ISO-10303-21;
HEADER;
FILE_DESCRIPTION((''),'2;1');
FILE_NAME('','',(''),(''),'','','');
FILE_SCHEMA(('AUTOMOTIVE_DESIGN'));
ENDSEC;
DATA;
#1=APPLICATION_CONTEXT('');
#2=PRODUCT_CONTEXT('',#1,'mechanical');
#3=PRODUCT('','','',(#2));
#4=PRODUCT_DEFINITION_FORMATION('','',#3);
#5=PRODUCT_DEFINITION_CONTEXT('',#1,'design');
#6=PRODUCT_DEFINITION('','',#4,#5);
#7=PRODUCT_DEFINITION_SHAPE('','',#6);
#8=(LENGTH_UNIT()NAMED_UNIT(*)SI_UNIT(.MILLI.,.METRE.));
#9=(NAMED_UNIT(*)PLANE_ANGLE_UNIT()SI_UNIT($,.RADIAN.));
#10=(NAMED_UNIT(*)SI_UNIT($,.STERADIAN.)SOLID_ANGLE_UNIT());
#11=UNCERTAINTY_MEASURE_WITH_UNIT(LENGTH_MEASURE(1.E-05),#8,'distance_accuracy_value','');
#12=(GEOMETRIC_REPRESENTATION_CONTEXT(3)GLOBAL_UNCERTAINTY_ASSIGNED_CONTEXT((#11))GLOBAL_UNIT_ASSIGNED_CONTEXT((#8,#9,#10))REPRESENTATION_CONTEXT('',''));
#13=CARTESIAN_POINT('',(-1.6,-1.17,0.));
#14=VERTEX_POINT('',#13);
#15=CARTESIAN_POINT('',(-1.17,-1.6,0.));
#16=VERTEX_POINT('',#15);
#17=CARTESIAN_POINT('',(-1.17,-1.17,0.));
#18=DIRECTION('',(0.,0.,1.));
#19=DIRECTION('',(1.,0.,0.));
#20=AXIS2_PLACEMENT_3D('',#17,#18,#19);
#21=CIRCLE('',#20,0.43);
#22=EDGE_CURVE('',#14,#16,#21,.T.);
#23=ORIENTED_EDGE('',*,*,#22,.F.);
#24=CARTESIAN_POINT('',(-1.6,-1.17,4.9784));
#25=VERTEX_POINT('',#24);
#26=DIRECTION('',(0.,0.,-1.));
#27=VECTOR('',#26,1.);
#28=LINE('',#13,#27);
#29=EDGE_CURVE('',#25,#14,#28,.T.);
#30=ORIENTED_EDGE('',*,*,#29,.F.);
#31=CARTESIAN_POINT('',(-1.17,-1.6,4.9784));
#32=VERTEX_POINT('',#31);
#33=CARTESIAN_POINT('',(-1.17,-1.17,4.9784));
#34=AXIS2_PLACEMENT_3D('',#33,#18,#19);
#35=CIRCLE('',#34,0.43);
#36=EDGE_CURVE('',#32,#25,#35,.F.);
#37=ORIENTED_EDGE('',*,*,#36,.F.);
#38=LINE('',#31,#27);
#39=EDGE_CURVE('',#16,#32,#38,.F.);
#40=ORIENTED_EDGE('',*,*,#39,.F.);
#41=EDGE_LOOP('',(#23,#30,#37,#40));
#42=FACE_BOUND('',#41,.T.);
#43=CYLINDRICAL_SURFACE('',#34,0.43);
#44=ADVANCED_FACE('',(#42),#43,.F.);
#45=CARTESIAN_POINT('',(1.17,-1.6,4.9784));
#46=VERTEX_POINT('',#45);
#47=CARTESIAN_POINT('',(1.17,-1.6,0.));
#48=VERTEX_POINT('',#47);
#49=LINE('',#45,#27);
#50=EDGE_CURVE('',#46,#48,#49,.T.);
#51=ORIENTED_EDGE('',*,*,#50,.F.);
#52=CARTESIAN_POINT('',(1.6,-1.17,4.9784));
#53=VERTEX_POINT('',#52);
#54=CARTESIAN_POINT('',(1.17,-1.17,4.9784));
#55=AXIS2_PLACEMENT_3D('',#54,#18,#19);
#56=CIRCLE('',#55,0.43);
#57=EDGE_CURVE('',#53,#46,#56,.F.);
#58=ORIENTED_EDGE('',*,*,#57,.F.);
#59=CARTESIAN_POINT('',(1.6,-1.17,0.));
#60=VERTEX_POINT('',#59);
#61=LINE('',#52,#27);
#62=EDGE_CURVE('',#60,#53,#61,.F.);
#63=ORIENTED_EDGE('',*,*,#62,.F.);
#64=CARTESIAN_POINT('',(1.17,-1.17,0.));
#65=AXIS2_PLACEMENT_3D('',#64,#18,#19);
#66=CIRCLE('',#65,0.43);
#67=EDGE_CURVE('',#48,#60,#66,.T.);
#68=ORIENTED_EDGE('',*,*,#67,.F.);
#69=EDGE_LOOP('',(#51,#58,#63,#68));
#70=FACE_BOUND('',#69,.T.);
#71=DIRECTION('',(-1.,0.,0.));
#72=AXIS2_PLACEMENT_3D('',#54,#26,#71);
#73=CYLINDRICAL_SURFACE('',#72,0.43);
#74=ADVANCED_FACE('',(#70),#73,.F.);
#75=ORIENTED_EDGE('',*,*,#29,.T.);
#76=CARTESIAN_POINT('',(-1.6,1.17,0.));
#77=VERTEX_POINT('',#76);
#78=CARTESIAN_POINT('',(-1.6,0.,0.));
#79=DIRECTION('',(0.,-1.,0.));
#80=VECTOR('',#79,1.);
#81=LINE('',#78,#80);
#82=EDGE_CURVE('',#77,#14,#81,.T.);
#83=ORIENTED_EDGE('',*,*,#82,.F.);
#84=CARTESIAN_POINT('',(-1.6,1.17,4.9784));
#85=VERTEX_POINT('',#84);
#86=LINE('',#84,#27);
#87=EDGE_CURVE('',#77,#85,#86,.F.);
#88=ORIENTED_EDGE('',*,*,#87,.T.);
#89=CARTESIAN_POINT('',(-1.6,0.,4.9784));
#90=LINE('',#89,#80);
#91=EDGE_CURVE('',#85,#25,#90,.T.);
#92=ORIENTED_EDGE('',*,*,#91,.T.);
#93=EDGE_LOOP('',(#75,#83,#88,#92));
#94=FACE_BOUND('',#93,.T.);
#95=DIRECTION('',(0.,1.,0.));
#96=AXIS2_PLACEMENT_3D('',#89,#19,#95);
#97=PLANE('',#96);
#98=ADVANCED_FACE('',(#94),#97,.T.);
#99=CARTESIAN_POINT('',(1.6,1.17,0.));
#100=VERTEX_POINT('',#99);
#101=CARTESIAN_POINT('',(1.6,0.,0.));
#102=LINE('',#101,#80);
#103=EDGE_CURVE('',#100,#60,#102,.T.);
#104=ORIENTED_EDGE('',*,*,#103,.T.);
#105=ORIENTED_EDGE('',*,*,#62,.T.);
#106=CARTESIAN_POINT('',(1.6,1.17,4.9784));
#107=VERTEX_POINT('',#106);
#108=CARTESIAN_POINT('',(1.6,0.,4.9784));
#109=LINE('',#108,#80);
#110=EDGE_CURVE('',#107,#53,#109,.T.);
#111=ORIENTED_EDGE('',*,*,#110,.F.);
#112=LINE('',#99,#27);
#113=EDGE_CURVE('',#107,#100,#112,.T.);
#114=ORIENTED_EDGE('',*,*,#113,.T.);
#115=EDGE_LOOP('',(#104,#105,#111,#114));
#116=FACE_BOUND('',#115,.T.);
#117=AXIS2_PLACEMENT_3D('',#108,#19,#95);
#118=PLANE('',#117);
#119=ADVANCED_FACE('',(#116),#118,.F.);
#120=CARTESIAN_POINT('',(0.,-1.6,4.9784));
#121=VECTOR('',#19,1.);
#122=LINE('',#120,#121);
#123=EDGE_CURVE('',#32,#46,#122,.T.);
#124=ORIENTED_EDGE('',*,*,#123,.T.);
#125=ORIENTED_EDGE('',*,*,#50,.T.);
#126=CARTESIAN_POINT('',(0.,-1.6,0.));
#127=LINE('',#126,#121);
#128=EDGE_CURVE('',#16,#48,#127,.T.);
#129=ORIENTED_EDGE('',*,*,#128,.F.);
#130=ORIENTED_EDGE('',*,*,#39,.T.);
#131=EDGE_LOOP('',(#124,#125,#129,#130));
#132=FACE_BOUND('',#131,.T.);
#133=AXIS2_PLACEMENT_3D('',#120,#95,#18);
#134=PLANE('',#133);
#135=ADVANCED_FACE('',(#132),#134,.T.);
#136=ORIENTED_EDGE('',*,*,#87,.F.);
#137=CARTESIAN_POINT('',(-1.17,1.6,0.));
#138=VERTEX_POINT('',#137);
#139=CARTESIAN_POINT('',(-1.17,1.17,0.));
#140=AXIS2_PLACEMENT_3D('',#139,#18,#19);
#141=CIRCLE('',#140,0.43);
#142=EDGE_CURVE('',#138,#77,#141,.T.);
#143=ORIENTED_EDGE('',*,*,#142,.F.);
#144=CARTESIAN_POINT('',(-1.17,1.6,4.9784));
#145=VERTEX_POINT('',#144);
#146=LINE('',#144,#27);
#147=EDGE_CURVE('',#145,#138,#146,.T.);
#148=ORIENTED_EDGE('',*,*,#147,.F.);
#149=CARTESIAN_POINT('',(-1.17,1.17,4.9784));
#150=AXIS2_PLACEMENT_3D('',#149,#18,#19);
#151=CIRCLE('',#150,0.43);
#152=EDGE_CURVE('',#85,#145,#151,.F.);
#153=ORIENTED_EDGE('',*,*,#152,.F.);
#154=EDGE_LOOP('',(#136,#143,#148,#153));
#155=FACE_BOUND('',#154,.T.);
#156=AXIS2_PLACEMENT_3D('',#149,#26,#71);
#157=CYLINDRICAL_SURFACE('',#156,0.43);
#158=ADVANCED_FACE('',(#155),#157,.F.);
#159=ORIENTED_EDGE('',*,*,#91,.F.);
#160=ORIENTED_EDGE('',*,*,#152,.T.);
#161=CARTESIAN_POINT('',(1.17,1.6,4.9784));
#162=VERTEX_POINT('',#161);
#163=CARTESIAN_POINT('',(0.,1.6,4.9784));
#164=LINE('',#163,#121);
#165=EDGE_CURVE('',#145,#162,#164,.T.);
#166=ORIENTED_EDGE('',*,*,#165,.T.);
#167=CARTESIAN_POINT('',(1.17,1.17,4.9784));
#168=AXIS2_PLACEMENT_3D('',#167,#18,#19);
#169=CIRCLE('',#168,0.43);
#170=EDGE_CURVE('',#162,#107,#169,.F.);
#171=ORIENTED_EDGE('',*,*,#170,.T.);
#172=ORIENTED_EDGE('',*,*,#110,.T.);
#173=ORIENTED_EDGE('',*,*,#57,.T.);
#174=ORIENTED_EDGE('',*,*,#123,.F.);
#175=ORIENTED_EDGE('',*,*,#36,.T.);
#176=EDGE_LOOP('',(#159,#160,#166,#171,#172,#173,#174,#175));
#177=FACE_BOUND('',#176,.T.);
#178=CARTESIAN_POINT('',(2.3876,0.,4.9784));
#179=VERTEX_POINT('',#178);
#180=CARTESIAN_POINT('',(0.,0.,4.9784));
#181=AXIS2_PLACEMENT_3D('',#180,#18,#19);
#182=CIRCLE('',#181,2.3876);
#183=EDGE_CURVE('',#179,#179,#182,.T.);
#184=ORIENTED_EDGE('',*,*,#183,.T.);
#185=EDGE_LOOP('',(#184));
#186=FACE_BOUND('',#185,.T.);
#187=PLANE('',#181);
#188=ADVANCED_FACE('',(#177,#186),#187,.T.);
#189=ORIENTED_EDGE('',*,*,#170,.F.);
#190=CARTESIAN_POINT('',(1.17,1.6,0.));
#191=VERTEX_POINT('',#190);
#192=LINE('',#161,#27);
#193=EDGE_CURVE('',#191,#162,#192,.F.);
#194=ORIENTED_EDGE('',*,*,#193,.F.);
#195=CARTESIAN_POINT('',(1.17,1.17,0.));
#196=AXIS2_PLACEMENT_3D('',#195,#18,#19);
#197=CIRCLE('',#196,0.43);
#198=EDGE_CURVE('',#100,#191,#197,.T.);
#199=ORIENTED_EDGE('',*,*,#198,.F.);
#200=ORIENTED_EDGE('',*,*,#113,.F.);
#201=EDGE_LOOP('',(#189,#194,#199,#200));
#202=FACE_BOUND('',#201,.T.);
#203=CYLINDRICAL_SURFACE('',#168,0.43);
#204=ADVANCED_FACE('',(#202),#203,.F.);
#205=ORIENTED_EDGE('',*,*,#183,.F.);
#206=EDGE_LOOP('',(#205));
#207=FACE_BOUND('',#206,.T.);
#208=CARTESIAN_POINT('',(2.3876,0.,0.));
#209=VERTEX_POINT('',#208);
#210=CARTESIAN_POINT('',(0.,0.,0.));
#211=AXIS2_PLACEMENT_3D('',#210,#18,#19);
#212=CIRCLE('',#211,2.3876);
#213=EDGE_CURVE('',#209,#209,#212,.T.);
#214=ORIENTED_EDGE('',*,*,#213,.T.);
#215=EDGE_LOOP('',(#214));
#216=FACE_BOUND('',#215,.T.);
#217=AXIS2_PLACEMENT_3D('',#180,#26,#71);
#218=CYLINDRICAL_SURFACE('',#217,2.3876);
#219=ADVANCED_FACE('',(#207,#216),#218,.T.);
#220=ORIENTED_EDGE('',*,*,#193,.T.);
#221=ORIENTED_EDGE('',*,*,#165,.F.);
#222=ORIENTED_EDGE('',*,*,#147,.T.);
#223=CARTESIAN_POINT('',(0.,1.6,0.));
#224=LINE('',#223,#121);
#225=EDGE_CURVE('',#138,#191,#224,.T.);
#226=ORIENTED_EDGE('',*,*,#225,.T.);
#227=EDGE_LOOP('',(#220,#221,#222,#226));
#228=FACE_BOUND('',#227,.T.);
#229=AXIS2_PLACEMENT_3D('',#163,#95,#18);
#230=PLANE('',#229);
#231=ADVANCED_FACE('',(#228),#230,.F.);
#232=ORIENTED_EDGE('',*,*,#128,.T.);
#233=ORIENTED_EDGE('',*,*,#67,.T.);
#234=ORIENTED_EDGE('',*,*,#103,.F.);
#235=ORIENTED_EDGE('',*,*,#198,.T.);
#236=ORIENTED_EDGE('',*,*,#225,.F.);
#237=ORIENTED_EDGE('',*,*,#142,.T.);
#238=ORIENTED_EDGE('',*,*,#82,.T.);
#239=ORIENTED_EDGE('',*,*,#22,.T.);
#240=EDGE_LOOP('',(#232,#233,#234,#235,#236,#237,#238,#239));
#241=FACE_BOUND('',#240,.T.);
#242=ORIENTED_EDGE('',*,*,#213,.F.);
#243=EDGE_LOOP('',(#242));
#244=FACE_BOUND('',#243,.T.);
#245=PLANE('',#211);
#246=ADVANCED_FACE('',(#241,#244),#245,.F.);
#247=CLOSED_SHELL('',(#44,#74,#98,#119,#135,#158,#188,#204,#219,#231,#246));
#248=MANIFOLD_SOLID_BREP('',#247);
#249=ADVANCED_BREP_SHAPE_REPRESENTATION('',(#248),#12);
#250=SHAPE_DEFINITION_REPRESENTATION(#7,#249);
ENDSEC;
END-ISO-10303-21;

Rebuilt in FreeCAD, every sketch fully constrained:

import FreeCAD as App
import Part
import Sketcher
from FreeCAD import Vector
Q = App.Units.Quantity


def edges_at(feature, points):
    """Names of the edges that pass closest to the given points."""
    edges = feature.Shape.Edges
    near = lambda p: min(range(len(edges)), key=lambda i: edges[i].distToShape(Part.Vertex(*p))[0])
    return sorted({f"Edge{near(p) + 1}" for p in points})

doc = App.newDocument("Part")
body = doc.addObject("PartDesign::Body", "Body")

sketch1 = doc.addObject("Sketcher::SketchObject", "Sketch")
body.addObject(sketch1)
sketch1.AttachmentSupport = (doc.XY_Plane, [""])
sketch1.MapMode = "FlatFace"
sketch1.addGeometry([
    Part.Circle(Vector(0, 0, 0), Vector(0, 0, 1), 2.4),
    Part.LineSegment(Vector(1.6, -1.6, 0), Vector(-1.6, -1.6, 0)),
    Part.LineSegment(Vector(-1.6, -1.6, 0), Vector(-1.6, 1.6, 0)),
    Part.LineSegment(Vector(-1.6, 1.6, 0), Vector(1.6, 1.6, 0)),
    Part.LineSegment(Vector(1.6, 1.6, 0), Vector(1.6, -1.6, 0)),
], False)
sketch1.addConstraint([
    Sketcher.Constraint("Coincident", 1, 2, 2, 1),
    Sketcher.Constraint("Coincident", 2, 2, 3, 1),
    Sketcher.Constraint("Coincident", 3, 2, 4, 1),
    Sketcher.Constraint("Coincident", 4, 2, 1, 1),
    Sketcher.Constraint("Horizontal", 1),
    Sketcher.Constraint("Vertical", 2),
    Sketcher.Constraint("Horizontal", 3),
    Sketcher.Constraint("Vertical", 4),
    Sketcher.Constraint("Coincident", 0, 3, -1, 1),
    Sketcher.Constraint("Symmetric", 1, 2, 3, 2, -1, 1),
    Sketcher.Constraint("Equal", 3, 2),
    Sketcher.Constraint("Diameter", 0, Q("0.188 in")),
    Sketcher.Constraint("DistanceX", 1, 2, 1, 1, 3.2),
])
pad1 = doc.addObject("PartDesign::Pad", "Pad")
body.addObject(pad1)
pad1.Profile = sketch1
pad1.Length = Q("0.196 in")
doc.recompute()

fillet = doc.addObject("PartDesign::Fillet", "Fillet")
body.addObject(fillet)
fillet.Base = (pad1, edges_at(pad1, [
    (-1.6, 1.6, 2.489),
    (-1.6, -1.6, 2.489),
    (1.6, -1.6, 2.489),
    (1.6, 1.6, 2.489),
]))
fillet.Radius = 0.43

doc.recompute()
